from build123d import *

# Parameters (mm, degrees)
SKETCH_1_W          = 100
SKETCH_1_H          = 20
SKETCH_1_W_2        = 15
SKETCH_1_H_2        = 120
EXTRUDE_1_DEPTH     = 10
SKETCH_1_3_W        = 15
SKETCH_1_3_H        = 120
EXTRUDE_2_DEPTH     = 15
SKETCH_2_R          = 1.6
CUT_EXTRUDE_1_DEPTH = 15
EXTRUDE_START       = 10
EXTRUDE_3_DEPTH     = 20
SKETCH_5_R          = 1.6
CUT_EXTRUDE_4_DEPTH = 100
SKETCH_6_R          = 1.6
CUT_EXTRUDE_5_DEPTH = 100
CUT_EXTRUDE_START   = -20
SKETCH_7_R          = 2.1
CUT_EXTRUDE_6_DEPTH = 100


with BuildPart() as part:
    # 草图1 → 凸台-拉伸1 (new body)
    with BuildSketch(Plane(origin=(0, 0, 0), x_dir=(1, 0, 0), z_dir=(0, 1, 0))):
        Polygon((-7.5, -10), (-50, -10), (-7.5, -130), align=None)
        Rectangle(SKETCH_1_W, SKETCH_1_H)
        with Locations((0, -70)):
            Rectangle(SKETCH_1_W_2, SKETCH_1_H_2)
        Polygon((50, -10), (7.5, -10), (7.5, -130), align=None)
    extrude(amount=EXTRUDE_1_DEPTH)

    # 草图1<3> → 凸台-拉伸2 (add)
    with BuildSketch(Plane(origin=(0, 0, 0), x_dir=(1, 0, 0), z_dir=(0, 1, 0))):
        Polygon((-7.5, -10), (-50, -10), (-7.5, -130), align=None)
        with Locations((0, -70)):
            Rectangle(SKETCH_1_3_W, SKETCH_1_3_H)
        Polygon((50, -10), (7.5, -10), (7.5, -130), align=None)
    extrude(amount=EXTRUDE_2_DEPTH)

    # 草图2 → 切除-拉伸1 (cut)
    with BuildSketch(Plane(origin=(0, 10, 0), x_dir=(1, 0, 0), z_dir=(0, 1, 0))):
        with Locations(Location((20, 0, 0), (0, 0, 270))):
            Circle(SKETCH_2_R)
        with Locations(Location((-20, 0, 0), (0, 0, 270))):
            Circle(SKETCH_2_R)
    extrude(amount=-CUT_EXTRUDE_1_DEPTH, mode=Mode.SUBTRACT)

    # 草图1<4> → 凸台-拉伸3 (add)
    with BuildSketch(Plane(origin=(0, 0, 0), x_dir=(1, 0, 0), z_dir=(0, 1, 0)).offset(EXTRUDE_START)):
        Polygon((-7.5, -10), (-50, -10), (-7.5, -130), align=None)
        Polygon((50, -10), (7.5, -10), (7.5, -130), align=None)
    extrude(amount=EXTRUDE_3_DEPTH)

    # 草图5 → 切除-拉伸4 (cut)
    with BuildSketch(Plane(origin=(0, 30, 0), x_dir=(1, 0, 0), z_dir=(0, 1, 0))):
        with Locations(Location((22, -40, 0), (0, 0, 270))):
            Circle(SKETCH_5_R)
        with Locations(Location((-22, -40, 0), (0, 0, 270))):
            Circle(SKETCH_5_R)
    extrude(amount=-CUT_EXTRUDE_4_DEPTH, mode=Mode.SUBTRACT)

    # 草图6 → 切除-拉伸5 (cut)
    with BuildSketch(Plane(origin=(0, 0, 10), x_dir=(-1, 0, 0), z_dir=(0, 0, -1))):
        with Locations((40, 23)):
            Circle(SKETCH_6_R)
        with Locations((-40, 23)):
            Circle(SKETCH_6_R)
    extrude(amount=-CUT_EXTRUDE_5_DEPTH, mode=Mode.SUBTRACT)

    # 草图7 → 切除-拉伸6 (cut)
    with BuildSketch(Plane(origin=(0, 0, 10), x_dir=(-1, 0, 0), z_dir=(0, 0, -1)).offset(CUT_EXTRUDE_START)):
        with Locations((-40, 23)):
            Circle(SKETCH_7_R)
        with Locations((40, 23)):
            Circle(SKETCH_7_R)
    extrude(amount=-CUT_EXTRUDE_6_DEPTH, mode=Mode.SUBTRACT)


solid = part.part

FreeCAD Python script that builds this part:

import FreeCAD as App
import Part
import Sketcher
Q = App.Units.Quantity


def add_polygon(sketch, points):
    """Adds a closed chain of lines whose ends are joined by coincident constraints."""
    first, n = sketch.GeometryCount, len(points)
    for a, b in zip(points, points[1:] + points[:1]):
        sketch.addGeometry(Part.LineSegment(App.Vector(*a, 0), App.Vector(*b, 0)), False)
    for i in range(n):
        sketch.addConstraint(Sketcher.Constraint("Coincident", first + i, 2, first + (i + 1) % n, 1))

doc = App.newDocument("Part")
body = doc.addObject("PartDesign::Body", "Body")

# Sketch on XZ plane
sketch1 = body.newObject("Sketcher::SketchObject", "Sketch")
sketch1.AttachmentSupport = (doc.getObject("XZ_Plane"), [""])
sketch1.MapMode = "FlatFace"
add_polygon(sketch1, [(-50, 10), (-8, 130), (8, 130), (50, 10), (50, -10), (-50, -10)])  # lines 0-5
sketch1.addConstraint([
    Sketcher.Constraint("Horizontal", 1),
    Sketcher.Constraint("Vertical", 3),
    Sketcher.Constraint("Horizontal", 4),
    Sketcher.Constraint("Vertical", 5),
    Sketcher.Constraint("Symmetric", 2, 2, 4, 2, -1, 1),
    Sketcher.Constraint("Horizontal", 2, 2, 5, 2),
    Sketcher.Constraint("Equal", 0, 2),
    Sketcher.Constraint("DistanceX", 1, 1, 1, 2, Q("15 mm")),
    Sketcher.Constraint("DistanceX", 4, 2, 4, 1, Q("100 mm")),
    Sketcher.Constraint("DistanceY", 3, 2, 3, 1, Q("20 mm")),
    Sketcher.Constraint("DistanceY", -1, 1, 0, 2, Q("130 mm")),
])
pad1 = body.newObject("PartDesign::Pad", "Pad")
pad1.Profile = sketch1
pad1.Length = 10
pad1.Reversed = True

# Sketch on XZ plane
sketch2 = body.newObject("Sketcher::SketchObject", "Sketch001")
sketch2.AttachmentSupport = (doc.getObject("XZ_Plane"), [""])
sketch2.MapMode = "FlatFace"
add_polygon(sketch2, [(-50, 10), (-8, 130), (8, 130), (50, 10)])  # lines 0-3
sketch2.addConstraint([
    Sketcher.Constraint("Horizontal", 1),
    Sketcher.Constraint("Horizontal", 3),
    Sketcher.Constraint("Equal", 0, 2),
    Sketcher.Constraint("DistanceX", 1, 1, 1, 2, Q("15 mm")),
    Sketcher.Constraint("DistanceX", 3, 2, 3, 1, Q("100 mm")),
    Sketcher.Constraint("DistanceY", -1, 1, 0, 2, Q("130 mm")),
    Sketcher.Constraint("DistanceX", -1, 1, 2, 2, Q("50 mm")),
    Sketcher.Constraint("DistanceY", -1, 1, 2, 2, Q("10 mm")),
])
pad2 = body.newObject("PartDesign::Pad", "Pad001")
pad2.Profile = sketch2
pad2.Length = 15
pad2.Reversed = True

# Sketch on XZ plane
sketch3 = body.newObject("Sketcher::SketchObject", "Sketch002")
sketch3.AttachmentSupport = (doc.getObject("XZ_Plane"), [""])
sketch3.MapMode = "FlatFace"
sketch3.AttachmentOffset = App.Placement(App.Vector(0, 0, -10), App.Rotation())
sketch3.addGeometry([
    Part.Circle(App.Vector(20, 0, 0), App.Vector(0, 0, 1), 1.6),
    Part.Circle(App.Vector(-20, 0, 0), App.Vector(0, 0, 1), 1.6),
], False)
sketch3.addConstraint([
    Sketcher.Constraint("Equal", 0, 1),
    Sketcher.Constraint("Symmetric", 0, 3, 1, 3, -1, 1),
    Sketcher.Constraint("PointOnObject", 0, 3, -1),
    Sketcher.Constraint("Diameter", 0, Q("3.2 mm")),
    Sketcher.Constraint("DistanceX", -1, 1, 0, 3, Q("20 mm")),
])
pocket1 = body.newObject("PartDesign::Pocket", "Pocket")
pocket1.Profile = sketch3
pocket1.Length = 15
pocket1.Reversed = True

# Sketch on XZ plane
sketch4 = body.newObject("Sketcher::SketchObject", "Sketch003")
sketch4.AttachmentSupport = (doc.getObject("XZ_Plane"), [""])
sketch4.MapMode = "FlatFace"
sketch4.AttachmentOffset = App.Placement(App.Vector(0, 0, -10), App.Rotation())
add_polygon(sketch4, [(-8, 10), (-50, 10), (-8, 130)])  # lines 0-2
add_polygon(sketch4, [(50, 10), (8, 10), (8, 130)])  # lines 3-5
sketch4.addConstraint([
    Sketcher.Constraint("Horizontal", 0),
    Sketcher.Constraint("Vertical", 2),
    Sketcher.Constraint("Horizontal", 3),
    Sketcher.Constraint("Vertical", 4),
    Sketcher.Constraint("Symmetric", 2, 2, 3, 2, -2),
    Sketcher.Constraint("Horizontal", 1, 2, 4, 2),
    Sketcher.Constraint("Equal", 0, 3),
    Sketcher.Constraint("DistanceY", 2, 2, 2, 1, Q("120 mm")),
    Sketcher.Constraint("DistanceX", 0, 2, 0, 1, Q("42.5 mm")),
    Sketcher.Constraint("DistanceX", 0, 2, -1, 1, Q("50 mm")),
    Sketcher.Constraint("DistanceY", -1, 1, 0, 2, Q("10 mm")),
])
pad3 = body.newObject("PartDesign::Pad", "Pad002")
pad3.Profile = sketch4
pad3.Length = 20
pad3.Reversed = True

# Sketch on XZ plane
sketch5 = body.newObject("Sketcher::SketchObject", "Sketch004")
sketch5.AttachmentSupport = (doc.getObject("XZ_Plane"), [""])
sketch5.MapMode = "FlatFace"
sketch5.AttachmentOffset = App.Placement(App.Vector(0, 0, -30), App.Rotation())
sketch5.addGeometry([
    Part.Circle(App.Vector(22, 40, 0), App.Vector(0, 0, 1), 1.6),
    Part.Circle(App.Vector(-22, 40, 0), App.Vector(0, 0, 1), 1.6),
], False)
sketch5.addConstraint([
    Sketcher.Constraint("Equal", 0, 1),
    Sketcher.Constraint("Symmetric", 0, 3, 1, 3, -2),
    Sketcher.Constraint("Diameter", 0, Q("3.2 mm")),
    Sketcher.Constraint("DistanceX", -1, 1, 0, 3, Q("22 mm")),
    Sketcher.Constraint("DistanceY", -1, 1, 0, 3, Q("40 mm")),
])
pocket2 = body.newObject("PartDesign::Pocket", "Pocket001")
pocket2.Profile = sketch5
pocket2.Length = 100
pocket2.Reversed = True

# Sketch on XY plane
sketch6 = body.newObject("Sketcher::SketchObject", "Sketch005")
sketch6.AttachmentSupport = (doc.getObject("XY_Plane"), [""])
sketch6.MapMode = "FlatFace"
sketch6.AttachmentOffset = App.Placement(App.Vector(0, 0, 10), App.Rotation())
sketch6.addGeometry([
    Part.Circle(App.Vector(-40, 23, 0), App.Vector(0, 0, 1), 1.6),
    Part.Circle(App.Vector(40, 23, 0), App.Vector(0, 0, 1), 1.6),
], False)
sketch6.addConstraint([
    Sketcher.Constraint("Equal", 0, 1),
    Sketcher.Constraint("Symmetric", 0, 3, 1, 3, -2),
    Sketcher.Constraint("Diameter", 0, Q("3.2 mm")),
    Sketcher.Constraint("DistanceX", 0, 3, -1, 1, Q("40 mm")),
    Sketcher.Constraint("DistanceY", -1, 1, 0, 3, Q("23 mm")),
])
pocket3 = body.newObject("PartDesign::Pocket", "Pocket002")
pocket3.Profile = sketch6
pocket3.Length = 100
pocket3.Reversed = True

# Sketch on XY plane
sketch7 = body.newObject("Sketcher::SketchObject", "Sketch006")
sketch7.AttachmentSupport = (doc.getObject("XY_Plane"), [""])
sketch7.MapMode = "FlatFace"
sketch7.AttachmentOffset = App.Placement(App.Vector(0, 0, 30), App.Rotation())
sketch7.addGeometry([
    Part.Circle(App.Vector(40, 23, 0), App.Vector(0, 0, 1), 2.1),
    Part.Circle(App.Vector(-40, 23, 0), App.Vector(0, 0, 1), 2.1),
], False)
sketch7.addConstraint([
    Sketcher.Constraint("Equal", 0, 1),
    Sketcher.Constraint("Symmetric", 0, 3, 1, 3, -2),
    Sketcher.Constraint("Diameter", 0, Q("4.2 mm")),
    Sketcher.Constraint("DistanceX", -1, 1, 0, 3, Q("40 mm")),
    Sketcher.Constraint("DistanceY", -1, 1, 0, 3, Q("23 mm")),
])
pocket4 = body.newObject("PartDesign::Pocket", "Pocket003")
pocket4.Profile = sketch7
pocket4.Length = 100
pocket4.Reversed = True

doc.recompute()
